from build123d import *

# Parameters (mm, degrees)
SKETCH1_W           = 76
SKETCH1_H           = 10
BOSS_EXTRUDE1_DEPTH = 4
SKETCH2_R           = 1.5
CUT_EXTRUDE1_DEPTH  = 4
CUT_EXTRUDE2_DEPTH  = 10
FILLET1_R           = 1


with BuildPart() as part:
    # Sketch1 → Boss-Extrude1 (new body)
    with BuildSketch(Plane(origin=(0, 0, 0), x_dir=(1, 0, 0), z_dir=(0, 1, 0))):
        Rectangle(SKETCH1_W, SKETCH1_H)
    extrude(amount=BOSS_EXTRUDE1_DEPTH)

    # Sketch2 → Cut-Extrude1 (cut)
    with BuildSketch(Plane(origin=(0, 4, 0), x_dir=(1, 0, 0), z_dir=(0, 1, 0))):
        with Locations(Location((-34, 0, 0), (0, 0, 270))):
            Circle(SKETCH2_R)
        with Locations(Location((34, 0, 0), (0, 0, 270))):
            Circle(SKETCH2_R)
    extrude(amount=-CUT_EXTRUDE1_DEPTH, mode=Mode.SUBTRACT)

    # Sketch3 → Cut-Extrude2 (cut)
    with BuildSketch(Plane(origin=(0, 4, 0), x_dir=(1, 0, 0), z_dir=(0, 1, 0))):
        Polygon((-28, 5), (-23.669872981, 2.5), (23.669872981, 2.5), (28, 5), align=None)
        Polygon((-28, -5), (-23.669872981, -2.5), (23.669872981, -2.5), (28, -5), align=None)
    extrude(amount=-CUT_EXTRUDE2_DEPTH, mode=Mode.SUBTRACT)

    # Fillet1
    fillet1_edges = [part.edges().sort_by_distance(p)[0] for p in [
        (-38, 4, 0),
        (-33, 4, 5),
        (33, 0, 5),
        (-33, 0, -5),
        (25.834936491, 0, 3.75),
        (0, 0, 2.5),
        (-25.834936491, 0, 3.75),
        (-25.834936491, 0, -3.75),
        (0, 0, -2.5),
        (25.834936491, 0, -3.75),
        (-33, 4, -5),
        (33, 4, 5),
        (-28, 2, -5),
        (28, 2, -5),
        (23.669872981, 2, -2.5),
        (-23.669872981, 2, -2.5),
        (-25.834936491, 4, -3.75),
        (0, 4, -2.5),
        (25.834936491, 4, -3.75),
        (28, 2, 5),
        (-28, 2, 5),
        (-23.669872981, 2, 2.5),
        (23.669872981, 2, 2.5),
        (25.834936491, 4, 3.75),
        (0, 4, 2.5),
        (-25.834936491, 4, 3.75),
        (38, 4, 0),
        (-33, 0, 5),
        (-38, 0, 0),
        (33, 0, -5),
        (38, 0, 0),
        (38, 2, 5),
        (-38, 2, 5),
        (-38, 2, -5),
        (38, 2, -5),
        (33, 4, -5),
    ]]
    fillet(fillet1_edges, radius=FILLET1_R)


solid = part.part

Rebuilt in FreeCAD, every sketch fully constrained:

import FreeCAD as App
import Part
import Sketcher

V = App.Vector
Q = App.Units.Quantity


def edges_at(feature, points):
    """Names of the edges that pass closest to the given points."""
    edges = feature.Shape.Edges
    near = lambda p: min(range(len(edges)), key=lambda i: edges[i].distToShape(Part.Vertex(*p))[0])
    return sorted({f"Edge{near(p) + 1}" for p in points})

doc = App.newDocument("Part")
body = doc.addObject("PartDesign::Body", "Body")

sketch1 = body.newObject("Sketcher::SketchObject", "Sketch")
sketch1.AttachmentSupport = (doc.getObject("XZ_Plane"), [""])
sketch1.MapMode = "FlatFace"
sketch1.addGeometry([
    Part.LineSegment(V(-38, -5, 0), V(-38, 5, 0)),
    Part.LineSegment(V(-38, 5, 0), V(38, 5, 0)),
    Part.LineSegment(V(38, 5, 0), V(38, -5, 0)),
    Part.LineSegment(V(38, -5, 0), V(-38, -5, 0)),
], False)
sketch1.addConstraint([
    Sketcher.Constraint("Coincident", 0, 2, 1, 1),
    Sketcher.Constraint("Coincident", 1, 2, 2, 1),
    Sketcher.Constraint("Coincident", 2, 2, 3, 1),
    Sketcher.Constraint("Coincident", 3, 2, 0, 1),
    Sketcher.Constraint("Vertical", 0),
    Sketcher.Constraint("Horizontal", 1),
    Sketcher.Constraint("Vertical", 2),
    Sketcher.Constraint("Horizontal", 3),
    Sketcher.Constraint("Symmetric", 0, 2, 2, 2, -1, 1),
    Sketcher.Constraint("DistanceX", 1, 1, 1, 2, Q("76 mm")),
    Sketcher.Constraint("DistanceY", 0, 1, 0, 2, Q("10 mm")),
])
pad1 = body.newObject("PartDesign::Pad", "Pad")
pad1.Profile = sketch1
pad1.Length = 4
pad1.Reversed = True

sketch2 = body.newObject("Sketcher::SketchObject", "Sketch001")
sketch2.AttachmentSupport = (doc.getObject("XZ_Plane"), [""])
sketch2.MapMode = "FlatFace"
sketch2.AttachmentOffset = App.Placement(V(0, 0, -4), App.Rotation())
sketch2.addGeometry([
    Part.Circle(V(-34, 0, 0), V(0, 0, 1), 1.5),
    Part.Circle(V(34, 0, 0), V(0, 0, 1), 1.5),
], False)
sketch2.addConstraint([
    Sketcher.Constraint("Equal", 0, 1),
    Sketcher.Constraint("Symmetric", 0, 3, 1, 3, -1, 1),
    Sketcher.Constraint("PointOnObject", 0, 3, -1),
    Sketcher.Constraint("Diameter", 0, Q("3 mm")),
    Sketcher.Constraint("DistanceX", 0, 3, -1, 1, Q("34 mm")),
])
pocket1 = body.newObject("PartDesign::Pocket", "Pocket")
pocket1.Profile = sketch2
pocket1.Length = 4
pocket1.Reversed = True

sketch3 = body.newObject("Sketcher::SketchObject", "Sketch002")
sketch3.AttachmentSupport = (doc.getObject("XZ_Plane"), [""])
sketch3.MapMode = "FlatFace"
sketch3.AttachmentOffset = App.Placement(V(0, 0, -4), App.Rotation())
sketch3.addGeometry([
    Part.LineSegment(V(-28, -5, 0), V(-24, -2, 0)),
    Part.LineSegment(V(-24, -2, 0), V(24, -2, 0)),
    Part.LineSegment(V(24, -2, 0), V(28, -5, 0)),
    Part.LineSegment(V(28, -5, 0), V(-28, -5, 0)),
    Part.LineSegment(V(-24, 2, 0), V(-28, 5, 0)),
    Part.LineSegment(V(-28, 5, 0), V(28, 5, 0)),
    Part.LineSegment(V(28, 5, 0), V(24, 2, 0)),
    Part.LineSegment(V(24, 2, 0), V(-24, 2, 0)),
], False)
sketch3.addConstraint([
    Sketcher.Constraint("Coincident", 0, 2, 1, 1),
    Sketcher.Constraint("Coincident", 1, 2, 2, 1),
    Sketcher.Constraint("Coincident", 2, 2, 3, 1),
    Sketcher.Constraint("Coincident", 3, 2, 0, 1),
    Sketcher.Constraint("Coincident", 4, 2, 5, 1),
    Sketcher.Constraint("Coincident", 5, 2, 6, 1),
    Sketcher.Constraint("Coincident", 6, 2, 7, 1),
    Sketcher.Constraint("Coincident", 7, 2, 4, 1),
    Sketcher.Constraint("Horizontal", 1),
    Sketcher.Constraint("Horizontal", 3),
    Sketcher.Constraint("Horizontal", 5),
    Sketcher.Constraint("Horizontal", 7),
    Sketcher.Constraint("Symmetric", 2, 2, 4, 2, -1, 1),
    Sketcher.Constraint("Symmetric", 0, 2, 6, 2, -1, 1),
    Sketcher.Constraint("Parallel", 2, 4),
    Sketcher.Constraint("Parallel", 0, 6),
    Sketcher.Constraint("Vertical", 3, 2, 4, 2),
    Sketcher.Constraint("Vertical", 1, 2, 6, 2),
    Sketcher.Constraint("DistanceX", 3, 2, 3, 1, Q("56 mm")),
    Sketcher.Constraint("Angle", 0, Q("30 deg")),
    Sketcher.Constraint("Distance", 0, Q("5 mm")),
    Sketcher.Constraint("DistanceY", 2, 2, -1, 1, Q("5 mm")),
])
pocket2 = body.newObject("PartDesign::Pocket", "Pocket001")
pocket2.Profile = sketch3
pocket2.Length = 10
pocket2.Reversed = True
doc.recompute()

fillet = body.newObject("PartDesign::Fillet", "Fillet")
fillet.Base = (pocket2, edges_at(pocket2, [
    (-38, 4, 0),
    (-33, 4, 5),
    (33, 0, 5),
    (-33, 0, -5),
    (25.835, 0, 3.75),
    (0, 0, 2.5),
    (-25.835, 0, 3.75),
    (-25.835, 0, -3.75),
    (0, 0, -2.5),
    (25.835, 0, -3.75),
    (-33, 4, -5),
    (33, 4, 5),
    (-28, 2, -5),
    (28, 2, -5),
    (23.67, 2, -2.5),
    (-23.67, 2, -2.5),
    (-25.835, 4, -3.75),
    (0, 4, -2.5),
    (25.835, 4, -3.75),
    (28, 2, 5),
    (-28, 2, 5),
    (-23.67, 2, 2.5),
    (23.67, 2, 2.5),
    (25.835, 4, 3.75),
    (0, 4, 2.5),
    (-25.835, 4, 3.75),
    (38, 4, 0),
    (-33, 0, 5),
    (-38, 0, 0),
    (33, 0, -5),
    (38, 0, 0),
    (38, 2, 5),
    (-38, 2, 5),
    (-38, 2, -5),
    (38, 2, -5),
    (33, 4, -5),
]))
fillet.Radius = 1

doc.recompute()
